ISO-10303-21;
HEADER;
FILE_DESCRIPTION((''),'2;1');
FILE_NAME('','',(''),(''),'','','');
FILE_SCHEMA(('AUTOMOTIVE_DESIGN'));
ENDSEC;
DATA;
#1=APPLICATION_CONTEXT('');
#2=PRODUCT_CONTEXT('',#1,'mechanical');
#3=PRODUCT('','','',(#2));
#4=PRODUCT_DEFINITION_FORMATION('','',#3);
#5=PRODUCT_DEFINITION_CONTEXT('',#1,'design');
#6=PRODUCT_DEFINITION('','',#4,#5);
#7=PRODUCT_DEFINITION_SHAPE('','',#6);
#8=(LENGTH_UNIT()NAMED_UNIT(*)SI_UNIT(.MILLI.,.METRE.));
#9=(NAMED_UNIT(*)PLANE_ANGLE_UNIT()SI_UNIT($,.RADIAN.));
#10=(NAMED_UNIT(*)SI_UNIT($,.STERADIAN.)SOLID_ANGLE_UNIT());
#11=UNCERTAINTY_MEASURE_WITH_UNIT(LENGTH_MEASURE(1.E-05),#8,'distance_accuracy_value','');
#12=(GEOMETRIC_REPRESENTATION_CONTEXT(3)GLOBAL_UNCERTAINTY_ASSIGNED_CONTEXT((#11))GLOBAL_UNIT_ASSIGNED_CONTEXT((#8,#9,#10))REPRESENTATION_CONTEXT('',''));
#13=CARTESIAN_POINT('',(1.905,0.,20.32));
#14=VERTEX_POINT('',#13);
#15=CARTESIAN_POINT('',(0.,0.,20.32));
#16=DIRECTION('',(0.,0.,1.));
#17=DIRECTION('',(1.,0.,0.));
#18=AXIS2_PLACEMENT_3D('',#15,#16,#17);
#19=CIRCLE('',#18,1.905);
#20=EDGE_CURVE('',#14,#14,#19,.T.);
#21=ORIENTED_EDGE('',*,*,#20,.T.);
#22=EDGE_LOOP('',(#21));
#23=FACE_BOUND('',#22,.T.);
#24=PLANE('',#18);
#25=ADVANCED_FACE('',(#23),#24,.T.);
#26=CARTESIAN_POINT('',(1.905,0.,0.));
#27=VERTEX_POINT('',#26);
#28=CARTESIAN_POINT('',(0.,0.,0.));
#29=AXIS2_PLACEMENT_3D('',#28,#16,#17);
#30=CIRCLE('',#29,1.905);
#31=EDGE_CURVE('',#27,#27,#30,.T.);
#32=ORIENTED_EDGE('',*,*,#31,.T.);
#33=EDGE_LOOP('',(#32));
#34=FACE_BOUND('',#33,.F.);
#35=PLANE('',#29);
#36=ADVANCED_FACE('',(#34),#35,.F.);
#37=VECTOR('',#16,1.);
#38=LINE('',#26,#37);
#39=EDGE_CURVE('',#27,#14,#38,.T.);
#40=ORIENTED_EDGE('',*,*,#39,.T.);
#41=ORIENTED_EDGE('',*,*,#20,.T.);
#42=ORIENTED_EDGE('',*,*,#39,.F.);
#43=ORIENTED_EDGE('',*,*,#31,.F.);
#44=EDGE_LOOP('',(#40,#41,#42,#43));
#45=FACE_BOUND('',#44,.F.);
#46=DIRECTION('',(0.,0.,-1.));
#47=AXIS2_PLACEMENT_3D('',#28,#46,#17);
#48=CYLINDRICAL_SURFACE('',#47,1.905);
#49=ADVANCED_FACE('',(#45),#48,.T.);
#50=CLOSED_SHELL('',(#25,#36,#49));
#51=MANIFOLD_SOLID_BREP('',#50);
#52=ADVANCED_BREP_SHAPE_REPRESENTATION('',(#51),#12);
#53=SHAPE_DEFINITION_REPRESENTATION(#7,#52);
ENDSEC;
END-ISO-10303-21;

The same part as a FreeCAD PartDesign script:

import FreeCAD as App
import Part
import Sketcher

V = App.Vector
Q = App.Units.Quantity

doc = App.newDocument("Part")
params = doc.addObject("Spreadsheet::Sheet", "Params")
for row, (alias, value) in enumerate([
    ("sketch1_diameter", "0.15 in"),
    ("pad1_length", "0.8 in"),
], start=1):
    params.set(f"A{row}", alias)
    params.set(f"B{row}", "=" + value)
    params.setAlias(f"B{row}", alias)

body = doc.addObject("PartDesign::Body", "Body")

# Sketch on XY plane
sketch1 = body.newObject("Sketcher::SketchObject", "Sketch")
sketch1.AttachmentSupport = (doc.getObject("XY_Plane"), [""])
sketch1.MapMode = "FlatFace"
sketch1.addGeometry(Part.Circle(V(0, 0, 0), V(0, 0, 1), 1.905), False)
sketch1.addConstraint([
    Sketcher.Constraint("Coincident", 0, 3, -1, 1),
    Sketcher.Constraint("Diameter", 0, Q("0.15 in")),
])
sketch1.setExpression("Constraints[1]", "Params.sketch1_diameter")
pad1 = body.newObject("PartDesign::Pad", "Pad")
pad1.Profile = sketch1
pad1.setExpression("Length", "Params.pad1_length")

doc.recompute()
